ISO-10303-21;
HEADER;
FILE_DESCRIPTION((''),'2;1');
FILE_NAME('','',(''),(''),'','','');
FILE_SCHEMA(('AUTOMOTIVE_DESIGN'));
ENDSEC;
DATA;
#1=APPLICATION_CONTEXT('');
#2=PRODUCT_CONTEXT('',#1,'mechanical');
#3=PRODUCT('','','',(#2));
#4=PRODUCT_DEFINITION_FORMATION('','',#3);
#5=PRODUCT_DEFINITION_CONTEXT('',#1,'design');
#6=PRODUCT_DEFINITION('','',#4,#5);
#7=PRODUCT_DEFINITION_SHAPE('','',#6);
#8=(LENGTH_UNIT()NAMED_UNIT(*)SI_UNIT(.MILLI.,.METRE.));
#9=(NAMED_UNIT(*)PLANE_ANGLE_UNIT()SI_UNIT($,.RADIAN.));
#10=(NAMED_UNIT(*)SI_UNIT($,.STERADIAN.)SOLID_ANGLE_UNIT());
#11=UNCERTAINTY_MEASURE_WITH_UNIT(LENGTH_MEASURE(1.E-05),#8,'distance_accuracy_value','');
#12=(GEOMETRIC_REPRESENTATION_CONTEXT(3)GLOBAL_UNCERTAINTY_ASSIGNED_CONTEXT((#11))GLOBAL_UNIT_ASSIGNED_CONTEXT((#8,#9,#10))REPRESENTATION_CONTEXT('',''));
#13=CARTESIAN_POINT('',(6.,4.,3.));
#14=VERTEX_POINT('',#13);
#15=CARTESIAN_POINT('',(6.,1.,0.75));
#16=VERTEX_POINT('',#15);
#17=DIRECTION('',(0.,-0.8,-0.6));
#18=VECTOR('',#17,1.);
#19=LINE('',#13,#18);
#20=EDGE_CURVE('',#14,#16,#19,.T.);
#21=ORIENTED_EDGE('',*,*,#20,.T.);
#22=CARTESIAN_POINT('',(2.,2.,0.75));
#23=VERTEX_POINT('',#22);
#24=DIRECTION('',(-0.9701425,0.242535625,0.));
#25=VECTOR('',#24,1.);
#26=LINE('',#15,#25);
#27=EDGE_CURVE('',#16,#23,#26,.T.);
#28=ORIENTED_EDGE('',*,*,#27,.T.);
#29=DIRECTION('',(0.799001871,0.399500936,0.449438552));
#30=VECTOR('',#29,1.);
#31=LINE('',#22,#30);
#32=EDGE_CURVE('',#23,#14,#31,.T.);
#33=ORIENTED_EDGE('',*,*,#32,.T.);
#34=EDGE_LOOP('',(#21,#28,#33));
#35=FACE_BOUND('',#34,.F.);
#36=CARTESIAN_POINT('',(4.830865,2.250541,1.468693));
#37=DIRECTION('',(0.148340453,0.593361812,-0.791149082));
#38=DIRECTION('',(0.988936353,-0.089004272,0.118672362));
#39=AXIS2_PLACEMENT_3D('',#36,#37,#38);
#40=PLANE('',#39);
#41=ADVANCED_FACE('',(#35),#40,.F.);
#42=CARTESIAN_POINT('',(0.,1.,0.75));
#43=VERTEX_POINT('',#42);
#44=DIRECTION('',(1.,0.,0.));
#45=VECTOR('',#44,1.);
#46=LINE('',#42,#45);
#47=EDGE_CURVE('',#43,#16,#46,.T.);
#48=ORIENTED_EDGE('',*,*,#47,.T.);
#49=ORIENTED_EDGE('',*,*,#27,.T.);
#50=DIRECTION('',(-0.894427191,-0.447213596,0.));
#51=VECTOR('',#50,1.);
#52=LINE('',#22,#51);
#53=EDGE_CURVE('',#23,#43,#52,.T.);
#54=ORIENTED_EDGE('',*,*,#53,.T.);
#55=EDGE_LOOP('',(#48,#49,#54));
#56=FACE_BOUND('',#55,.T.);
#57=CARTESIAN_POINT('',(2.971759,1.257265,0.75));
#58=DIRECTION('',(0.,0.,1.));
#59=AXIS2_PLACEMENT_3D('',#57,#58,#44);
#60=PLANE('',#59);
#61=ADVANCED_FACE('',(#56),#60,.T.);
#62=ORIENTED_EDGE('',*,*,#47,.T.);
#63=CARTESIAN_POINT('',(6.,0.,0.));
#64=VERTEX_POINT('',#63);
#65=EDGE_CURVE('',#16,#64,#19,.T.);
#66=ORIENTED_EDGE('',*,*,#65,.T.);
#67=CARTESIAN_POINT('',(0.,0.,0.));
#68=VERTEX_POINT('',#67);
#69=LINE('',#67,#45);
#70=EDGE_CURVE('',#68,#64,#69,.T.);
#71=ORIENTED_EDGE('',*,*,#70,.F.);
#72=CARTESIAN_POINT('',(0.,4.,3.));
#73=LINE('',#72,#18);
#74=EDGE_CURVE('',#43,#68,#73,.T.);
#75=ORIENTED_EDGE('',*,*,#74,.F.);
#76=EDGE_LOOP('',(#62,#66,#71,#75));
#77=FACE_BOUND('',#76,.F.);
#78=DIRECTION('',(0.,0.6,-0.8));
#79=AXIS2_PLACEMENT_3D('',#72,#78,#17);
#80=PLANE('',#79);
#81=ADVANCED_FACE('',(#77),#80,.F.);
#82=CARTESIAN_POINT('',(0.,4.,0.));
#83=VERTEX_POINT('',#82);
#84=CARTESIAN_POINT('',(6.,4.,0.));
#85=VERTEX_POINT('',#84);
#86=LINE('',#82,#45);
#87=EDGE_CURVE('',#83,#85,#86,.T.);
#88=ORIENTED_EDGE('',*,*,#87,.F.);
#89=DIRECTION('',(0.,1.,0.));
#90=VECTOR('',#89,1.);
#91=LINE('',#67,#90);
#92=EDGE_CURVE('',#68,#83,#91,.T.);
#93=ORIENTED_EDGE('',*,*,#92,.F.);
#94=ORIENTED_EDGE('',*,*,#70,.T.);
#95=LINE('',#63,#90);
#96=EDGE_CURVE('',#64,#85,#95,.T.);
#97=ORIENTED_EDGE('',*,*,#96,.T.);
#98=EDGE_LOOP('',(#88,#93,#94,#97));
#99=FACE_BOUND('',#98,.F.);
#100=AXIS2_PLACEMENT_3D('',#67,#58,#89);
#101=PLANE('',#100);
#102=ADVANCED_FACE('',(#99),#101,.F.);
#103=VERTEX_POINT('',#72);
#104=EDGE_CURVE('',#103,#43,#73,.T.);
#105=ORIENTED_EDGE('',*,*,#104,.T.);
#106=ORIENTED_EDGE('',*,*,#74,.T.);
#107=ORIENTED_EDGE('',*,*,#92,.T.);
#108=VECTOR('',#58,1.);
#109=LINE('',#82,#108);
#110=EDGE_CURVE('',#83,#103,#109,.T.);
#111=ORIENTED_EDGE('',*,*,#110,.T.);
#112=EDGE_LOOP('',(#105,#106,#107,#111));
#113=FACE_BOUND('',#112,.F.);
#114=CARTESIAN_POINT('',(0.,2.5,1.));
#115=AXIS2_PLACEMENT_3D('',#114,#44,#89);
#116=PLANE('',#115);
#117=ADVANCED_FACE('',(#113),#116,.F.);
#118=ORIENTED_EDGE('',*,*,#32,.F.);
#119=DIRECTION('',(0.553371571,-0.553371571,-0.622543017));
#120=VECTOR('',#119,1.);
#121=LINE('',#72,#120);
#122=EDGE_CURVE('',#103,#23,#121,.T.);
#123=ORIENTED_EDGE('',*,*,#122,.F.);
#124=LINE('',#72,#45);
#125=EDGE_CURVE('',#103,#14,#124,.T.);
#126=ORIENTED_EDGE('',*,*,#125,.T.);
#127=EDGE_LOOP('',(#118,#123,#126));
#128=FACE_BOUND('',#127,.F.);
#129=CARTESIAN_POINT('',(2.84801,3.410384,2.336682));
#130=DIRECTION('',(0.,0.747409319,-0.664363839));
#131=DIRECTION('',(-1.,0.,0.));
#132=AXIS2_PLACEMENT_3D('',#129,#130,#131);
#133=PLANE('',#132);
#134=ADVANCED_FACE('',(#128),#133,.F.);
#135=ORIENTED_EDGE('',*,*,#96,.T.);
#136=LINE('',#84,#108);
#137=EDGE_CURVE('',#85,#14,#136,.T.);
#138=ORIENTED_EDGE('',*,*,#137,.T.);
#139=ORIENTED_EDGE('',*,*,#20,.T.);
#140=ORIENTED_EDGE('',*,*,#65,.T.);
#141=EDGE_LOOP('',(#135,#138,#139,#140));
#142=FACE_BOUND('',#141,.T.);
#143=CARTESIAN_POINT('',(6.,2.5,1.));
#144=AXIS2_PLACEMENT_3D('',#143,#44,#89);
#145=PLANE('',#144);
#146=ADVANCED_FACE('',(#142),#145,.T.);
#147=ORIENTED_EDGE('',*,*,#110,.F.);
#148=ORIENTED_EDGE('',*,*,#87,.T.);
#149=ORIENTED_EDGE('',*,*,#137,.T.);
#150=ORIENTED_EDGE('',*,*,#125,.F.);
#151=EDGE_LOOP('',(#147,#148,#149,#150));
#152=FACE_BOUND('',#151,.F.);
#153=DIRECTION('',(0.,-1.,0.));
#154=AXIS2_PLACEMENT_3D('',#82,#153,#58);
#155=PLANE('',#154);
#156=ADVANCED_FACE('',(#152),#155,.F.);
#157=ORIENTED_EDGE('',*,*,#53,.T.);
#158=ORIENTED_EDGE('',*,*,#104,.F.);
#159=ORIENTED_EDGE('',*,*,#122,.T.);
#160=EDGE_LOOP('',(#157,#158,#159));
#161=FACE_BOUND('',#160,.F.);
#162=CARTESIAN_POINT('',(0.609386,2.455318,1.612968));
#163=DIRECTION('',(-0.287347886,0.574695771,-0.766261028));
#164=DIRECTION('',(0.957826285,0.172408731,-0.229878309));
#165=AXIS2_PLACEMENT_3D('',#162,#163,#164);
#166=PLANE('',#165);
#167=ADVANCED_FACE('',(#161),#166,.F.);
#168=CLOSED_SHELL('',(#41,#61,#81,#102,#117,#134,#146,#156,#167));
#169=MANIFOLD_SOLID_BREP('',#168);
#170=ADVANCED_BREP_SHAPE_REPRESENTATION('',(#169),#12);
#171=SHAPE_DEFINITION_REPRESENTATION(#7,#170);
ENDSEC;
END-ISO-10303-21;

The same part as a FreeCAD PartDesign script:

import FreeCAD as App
import Part
import Sketcher

doc = App.newDocument("Part")
params = doc.addObject("Spreadsheet::Sheet", "Params")
for row, (alias, value) in enumerate([
    ("sketch1_width", "4 mm"),
    ("sketch1_height", "3 mm"),
    ("pad1_length", "6 mm"),
    ("sketch2_width", "6 mm"),
    ("pocket1_length", "25 mm"),
    ("pocket2_length", "25 mm"),
    ("sketch4_height", "3.75 mm"),
    ("pocket3_length", "25 mm"),
    ("sketch5_width", "6 mm"),
    ("pocket4_length", "25 mm"),
], start=1):
    params.set(f"A{row}", alias)
    params.set(f"B{row}", "=" + value)
    params.setAlias(f"B{row}", alias)

body = doc.addObject("PartDesign::Body", "Body")

# Sketch on YZ plane
sketch1 = body.newObject("Sketcher::SketchObject", "Sketch")
sketch1.AttachmentSupport = (doc.getObject("YZ_Plane"), [""])
sketch1.MapMode = "FlatFace"
sketch1.addGeometry([
    Part.LineSegment(App.Vector(4, 3, 0), App.Vector(0, 0, 0)),
    Part.LineSegment(App.Vector(0, 0, 0), App.Vector(4, 0, 0)),
    Part.LineSegment(App.Vector(4, 0, 0), App.Vector(4, 3, 0)),
], False)
sketch1.addConstraint([
    Sketcher.Constraint("Coincident", 0, 2, 1, 1),
    Sketcher.Constraint("Coincident", 1, 2, 2, 1),
    Sketcher.Constraint("Coincident", 2, 2, 0, 1),
    Sketcher.Constraint("Horizontal", 1),
    Sketcher.Constraint("Vertical", 2),
    Sketcher.Constraint("Coincident", 0, 2, -1, 1),
    Sketcher.Constraint("DistanceX", 1, 1, 1, 2, 4.0),
    Sketcher.Constraint("DistanceY", 2, 1, 2, 2, 3.0),
])
sketch1.setExpression("Constraints[6]", "Params.sketch1_width")
sketch1.setExpression("Constraints[7]", "Params.sketch1_height")
pad1 = body.newObject("PartDesign::Pad", "Pad")
pad1.Profile = sketch1
pad1.setExpression("Length", "Params.pad1_length")

# Sketch on XY plane
sketch2 = body.newObject("Sketcher::SketchObject", "Sketch001")
sketch2.AttachmentSupport = (doc.getObject("XY_Plane"), [""])
sketch2.MapMode = "FlatFace"
sketch2.AttachmentOffset = App.Placement(App.Vector(0, 0, 0.75), App.Rotation())
sketch2.addGeometry([
    Part.LineSegment(App.Vector(2, 2, 0), App.Vector(0, 1, 0)),
    Part.LineSegment(App.Vector(0, 1, 0), App.Vector(6, 1, 0)),
    Part.LineSegment(App.Vector(6, 1, 0), App.Vector(2, 2, 0)),
], False)
sketch2.addConstraint([
    Sketcher.Constraint("Coincident", 0, 2, 1, 1),
    Sketcher.Constraint("Coincident", 1, 2, 2, 1),
    Sketcher.Constraint("Coincident", 2, 2, 0, 1),
    Sketcher.Constraint("Horizontal", 1),
    Sketcher.Constraint("PointOnObject", 0, 2, -2),
    Sketcher.Constraint("DistanceX", 1, 1, 1, 2, 6.0),
    Sketcher.Constraint("DistanceY", -1, 1, 0, 2, 1.0),
    Sketcher.Constraint("DistanceX", -1, 1, 2, 2, 2.0),
    Sketcher.Constraint("DistanceY", -1, 1, 2, 2, 2.0),
])
sketch2.setExpression("Constraints[5]", "Params.sketch2_width")
pocket1 = body.newObject("PartDesign::Pocket", "Pocket")
pocket1.Profile = sketch2
pocket1.setExpression("Length", "Params.pocket1_length")
pocket1.Reversed = True

# Sketch on an angled plane
sketch3 = body.newObject("Sketcher::SketchObject", "Sketch002")
sketch3.Placement = App.Placement(App.Vector(0.132029, 0.528117, -0.704156), App.Rotation(App.Vector(0.988936353, -0.089004272, 0.118672362), App.Vector(0, -0.8, -0.6), App.Vector(0.148340453, 0.593361812, -0.791149082), "ZXY"))
sketch3.addGeometry([
    Part.LineSegment(App.Vector(5.9, -1.2, 0), App.Vector(1.9, -2, 0)),
    Part.LineSegment(App.Vector(1.9, -2, 0), App.Vector(5.9, -5, 0)),
    Part.LineSegment(App.Vector(5.9, -5, 0), App.Vector(6.7, -1, 0)),
    Part.LineSegment(App.Vector(6.7, -1, 0), App.Vector(5.9, -1.2, 0)),
], False)
sketch3.addConstraint([
    Sketcher.Constraint("Coincident", 0, 2, 1, 1),
    Sketcher.Constraint("Coincident", 1, 2, 2, 1),
    Sketcher.Constraint("Coincident", 2, 2, 3, 1),
    Sketcher.Constraint("Coincident", 3, 2, 0, 1),
    Sketcher.Constraint("Vertical", 1, 2, 3, 2),
    Sketcher.Constraint("DistanceY", 1, 2, -1, 1, 5.0),
    Sketcher.Constraint("DistanceY", 0, 2, 3, 2, 0.8),
    Sketcher.Constraint("DistanceY", 0, 2, -1, 1, 2.05),
    Sketcher.Constraint("DistanceX", -1, 1, 0, 2, 1.888868),
    Sketcher.Constraint("DistanceX", -1, 1, 1, 2, 5.933618),
    Sketcher.Constraint("DistanceX", -1, 1, 2, 2, 6.707941),
    Sketcher.Constraint("DistanceY", 2, 2, -1, 1, 1.000439),
])
pocket2 = body.newObject("PartDesign::Pocket", "Pocket001")
pocket2.Profile = sketch3
pocket2.setExpression("Length", "Params.pocket2_length")

# Sketch on an angled plane
sketch4 = body.newObject("Sketcher::SketchObject", "Sketch003")
sketch4.Placement = App.Placement(App.Vector(0, 0, 0), App.Rotation(App.Vector(0.957826285, 0.172408731, -0.229878309), App.Vector(-0.000000001, -0.8, -0.6), App.Vector(-0.287347886, 0.574695771, -0.766261028), "ZXY"))
sketch4.addGeometry([
    Part.LineSegment(App.Vector(0, -1.2, 0), App.Vector(0, -5, 0)),
    Part.LineSegment(App.Vector(0, -5, 0), App.Vector(2.1, -2, 0)),
    Part.LineSegment(App.Vector(2.1, -2, 0), App.Vector(0, -1.2, 0)),
], False)
sketch4.addConstraint([
    Sketcher.Constraint("Coincident", 0, 2, 1, 1),
    Sketcher.Constraint("Coincident", 1, 2, 2, 1),
    Sketcher.Constraint("Coincident", 2, 2, 0, 1),
    Sketcher.Constraint("Vertical", 0),
    Sketcher.Constraint("PointOnObject", 0, 2, -2),
    Sketcher.Constraint("DistanceY", 0, 2, -1, 1, 5.0),
    Sketcher.Constraint("DistanceY", 0, 2, 0, 1, 3.75),
    Sketcher.Constraint("DistanceY", 1, 2, 2, 2, 0.8),
    Sketcher.Constraint("Distance", 1, 3.614208),
])
sketch4.setExpression("Constraints[6]", "Params.sketch4_height")
pocket3 = body.newObject("PartDesign::Pocket", "Pocket002")
pocket3.Profile = sketch4
pocket3.setExpression("Length", "Params.pocket3_length")

# Sketch on an angled plane
sketch5 = body.newObject("Sketcher::SketchObject", "Sketch004")
sketch5.Placement = App.Placement(App.Vector(0, 0.744828, -0.662069), App.Rotation(App.Vector(-1, 0, 0), App.Vector(0, 0.664363839, 0.747409319), App.Vector(0, 0.747409319, -0.664363839), "ZXY"))
sketch5.addGeometry([
    Part.LineSegment(App.Vector(-2, 1.9, 0), App.Vector(0, 4.9, 0)),
    Part.LineSegment(App.Vector(0, 4.9, 0), App.Vector(-6, 4.9, 0)),
    Part.LineSegment(App.Vector(-6, 4.9, 0), App.Vector(-2, 1.9, 0)),
], False)
sketch5.addConstraint([
    Sketcher.Constraint("Coincident", 0, 2, 1, 1),
    Sketcher.Constraint("Coincident", 1, 2, 2, 1),
    Sketcher.Constraint("Coincident", 2, 2, 0, 1),
    Sketcher.Constraint("Horizontal", 1),
    Sketcher.Constraint("PointOnObject", 0, 2, -2),
    Sketcher.Constraint("DistanceX", 1, 2, 1, 1, 6.0),
    Sketcher.Constraint("DistanceX", 2, 2, -1, 1, 2.0),
    Sketcher.Constraint("DistanceY", 2, 2, 0, 2, 3.010399),
    Sketcher.Constraint("DistanceY", -1, 1, 0, 2, 4.899683),
])
sketch5.setExpression("Constraints[5]", "Params.sketch5_width")
pocket4 = body.newObject("PartDesign::Pocket", "Pocket003")
pocket4.Profile = sketch5
pocket4.setExpression("Length", "Params.pocket4_length")

doc.recompute()
